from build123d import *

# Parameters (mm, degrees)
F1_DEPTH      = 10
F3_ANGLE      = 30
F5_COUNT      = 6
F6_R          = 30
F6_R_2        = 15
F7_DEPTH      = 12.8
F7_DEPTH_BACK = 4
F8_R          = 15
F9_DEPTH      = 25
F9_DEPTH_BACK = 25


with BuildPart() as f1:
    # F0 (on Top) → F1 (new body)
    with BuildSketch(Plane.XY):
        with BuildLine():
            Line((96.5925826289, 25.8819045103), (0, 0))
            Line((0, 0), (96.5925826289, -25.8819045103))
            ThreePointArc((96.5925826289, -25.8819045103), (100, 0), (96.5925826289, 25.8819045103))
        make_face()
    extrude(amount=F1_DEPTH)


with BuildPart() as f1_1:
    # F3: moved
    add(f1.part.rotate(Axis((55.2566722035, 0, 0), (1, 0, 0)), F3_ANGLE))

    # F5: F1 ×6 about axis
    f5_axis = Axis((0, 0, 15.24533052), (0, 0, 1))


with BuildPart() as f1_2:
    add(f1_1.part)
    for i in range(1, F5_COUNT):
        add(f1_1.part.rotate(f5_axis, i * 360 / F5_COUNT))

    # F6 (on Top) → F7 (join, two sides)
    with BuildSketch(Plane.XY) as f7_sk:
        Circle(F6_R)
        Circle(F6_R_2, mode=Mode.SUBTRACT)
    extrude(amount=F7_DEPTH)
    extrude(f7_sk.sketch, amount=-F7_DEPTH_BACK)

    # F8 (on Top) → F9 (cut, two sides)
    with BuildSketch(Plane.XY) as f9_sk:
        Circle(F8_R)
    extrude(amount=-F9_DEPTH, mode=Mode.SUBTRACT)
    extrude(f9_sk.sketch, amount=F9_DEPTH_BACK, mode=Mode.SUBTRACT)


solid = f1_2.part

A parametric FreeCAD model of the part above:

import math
import FreeCAD as App
import Part
import Sketcher
from FreeCAD import Vector
Q = App.Units.Quantity

doc = App.newDocument("Part")
body = doc.addObject("PartDesign::Body", "Body")

# Sketch on XY plane
sketch1 = body.newObject("Sketcher::SketchObject", "Sketch")
sketch1.AttachmentSupport = (doc.getObject("XY_Plane"), [""])
sketch1.MapMode = "FlatFace"
sketch1.addGeometry([
    Part.LineSegment(Vector(97, 26, 0), Vector(0, 0, 0)),
    Part.LineSegment(Vector(0, 0, 0), Vector(97, -26, 0)),
    Part.ArcOfCircle(Part.Circle(Vector(0, 0, 0), Vector(0, 0, 1), 100), math.radians(-15), math.radians(15)),
], False)
sketch1.addConstraint([
    Sketcher.Constraint("Coincident", 0, 2, 1, 1),
    Sketcher.Constraint("Coincident", 1, 2, 2, 1),
    Sketcher.Constraint("Coincident", 2, 2, 0, 1),
    Sketcher.Constraint("Coincident", 2, 3, -1, 1),
    Sketcher.Constraint("Coincident", 0, 2, -1, 1),
    Sketcher.Constraint("Vertical", 1, 2, 2, 2),
    Sketcher.Constraint("Radius", 2, Q("100 mm")),
    Sketcher.Constraint("Angle", 0, Q("-165 deg")),
])
pad1 = body.newObject("PartDesign::Pad", "Pad")
pad1.Profile = sketch1
pad1.Length = 10
body2 = doc.addObject("PartDesign::Body", "Body001")
doc.recompute()

body.Placement = App.Placement(Vector(0, 0, 0), App.Rotation(Vector(1, 0, 0), 30))
boolean = body2.newObject("PartDesign::Boolean", "Boolean")
boolean.Type = "Fuse"
boolean.addObjects([body])
body3 = doc.addObject("PartDesign::Body", "Body002")
body3.AllowCompound = True
doc.recompute()

body3.BaseFeature = body2
doc.recompute()

body4 = doc.addObject("PartDesign::Body", "Body003")
body4.BaseFeature = body2
body4.Placement = App.Placement(Vector(0, 0, 0), App.Rotation(Vector(0, 0, 1), 60))
boolean2 = body3.newObject("PartDesign::Boolean", "Boolean001")
boolean2.Type = "Fuse"
boolean2.addObjects([body4])
doc.recompute()

body5 = doc.addObject("PartDesign::Body", "Body004")
body5.BaseFeature = body2
body5.Placement = App.Placement(Vector(0, 0, 0), App.Rotation(Vector(0, 0, 1), 120))
boolean3 = body3.newObject("PartDesign::Boolean", "Boolean002")
boolean3.Type = "Fuse"
boolean3.addObjects([body5])
doc.recompute()

body6 = doc.addObject("PartDesign::Body", "Body005")
body6.BaseFeature = body2
body6.Placement = App.Placement(Vector(0, 0, 0), App.Rotation(Vector(0, 0, 1), 180))
boolean4 = body3.newObject("PartDesign::Boolean", "Boolean003")
boolean4.Type = "Fuse"
boolean4.addObjects([body6])
doc.recompute()

body7 = doc.addObject("PartDesign::Body", "Body006")
body7.BaseFeature = body2
body7.Placement = App.Placement(Vector(0, 0, 0), App.Rotation(Vector(0, 0, 1), 240))
boolean5 = body3.newObject("PartDesign::Boolean", "Boolean004")
boolean5.Type = "Fuse"
boolean5.addObjects([body7])
doc.recompute()

body2.Placement = App.Placement(Vector(0, 0, 0), App.Rotation(Vector(0, 0, 1), 300))
boolean6 = body3.newObject("PartDesign::Boolean", "Boolean005")
boolean6.Type = "Fuse"
boolean6.addObjects([body2])

# Sketch on XY plane
sketch2 = body3.newObject("Sketcher::SketchObject", "Sketch001")
sketch2.AttachmentSupport = (doc.getObject("XY_Plane002"), [""])
sketch2.MapMode = "FlatFace"
sketch2.addGeometry([
    Part.Circle(Vector(0, 0, 0), Vector(0, 0, 1), 30),
    Part.Circle(Vector(0, 0, 0), Vector(0, 0, 1), 15),
], False)
sketch2.addConstraint([
    Sketcher.Constraint("Coincident", 0, 3, -1, 1),
    Sketcher.Constraint("Coincident", 1, 3, -1, 1),
    Sketcher.Constraint("Diameter", 0, Q("60 mm")),
    Sketcher.Constraint("Diameter", 1, Q("30 mm")),
])
pad2 = body3.newObject("PartDesign::Pad", "Pad001")
pad2.Profile = sketch2
pad2.Type = "TwoLengths"
pad2.Length = 12.8
pad2.Length2 = 4

# Sketch on XY plane
sketch3 = body3.newObject("Sketcher::SketchObject", "Sketch002")
sketch3.AttachmentSupport = (doc.getObject("XY_Plane002"), [""])
sketch3.MapMode = "FlatFace"
sketch3.addGeometry(Part.Circle(Vector(0, 0, 0), Vector(0, 0, 1), 15), False)
sketch3.addConstraint([
    Sketcher.Constraint("Coincident", 0, 3, -1, 1),
    Sketcher.Constraint("Diameter", 0, Q("30 mm")),
])
pocket1 = body3.newObject("PartDesign::Pocket", "Pocket")
pocket1.Profile = sketch3
pocket1.Type = "ThroughAll"
pocket1.Midplane = True

doc.recompute()
